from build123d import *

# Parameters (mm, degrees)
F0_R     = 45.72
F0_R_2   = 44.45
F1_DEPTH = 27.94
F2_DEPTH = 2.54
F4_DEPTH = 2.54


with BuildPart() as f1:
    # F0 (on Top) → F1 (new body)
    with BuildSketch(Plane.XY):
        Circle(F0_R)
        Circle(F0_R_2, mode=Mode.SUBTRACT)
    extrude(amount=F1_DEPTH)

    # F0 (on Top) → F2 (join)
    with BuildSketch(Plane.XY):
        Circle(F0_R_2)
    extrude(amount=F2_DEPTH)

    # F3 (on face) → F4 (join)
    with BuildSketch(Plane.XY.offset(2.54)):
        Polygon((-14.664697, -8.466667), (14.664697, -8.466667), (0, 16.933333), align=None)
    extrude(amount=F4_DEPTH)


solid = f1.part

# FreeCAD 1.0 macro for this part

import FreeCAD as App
import Part
import Sketcher
Q = App.Units.Quantity

doc = App.newDocument("Part")
body = doc.addObject("PartDesign::Body", "Body")

# Sketch on XY plane
sketch1 = body.newObject("Sketcher::SketchObject", "Sketch")
sketch1.AttachmentSupport = (doc.getObject("XY_Plane"), [""])
sketch1.MapMode = "FlatFace"
sketch1.addGeometry([
    Part.Circle(App.Vector(0, 0, 0), App.Vector(0, 0, 1), 46),
    Part.Circle(App.Vector(0, 0, 0), App.Vector(0, 0, 1), 44),
], False)
sketch1.addConstraint([
    Sketcher.Constraint("Coincident", 0, 3, -1, 1),
    Sketcher.Constraint("Coincident", 1, 3, -1, 1),
    Sketcher.Constraint("Diameter", 0, Q("3.6 in")),
    Sketcher.Constraint("Diameter", 1, Q("3.5 in")),
])
pad1 = body.newObject("PartDesign::Pad", "Pad")
pad1.Profile = sketch1
pad1.Length = Q("1.1 in")

# Sketch on XY plane
sketch2 = body.newObject("Sketcher::SketchObject", "Sketch001")
sketch2.AttachmentSupport = (doc.getObject("XY_Plane"), [""])
sketch2.MapMode = "FlatFace"
sketch2.addGeometry(Part.Circle(App.Vector(0, 0, 0), App.Vector(0, 0, 1), 44), False)
sketch2.addConstraint([
    Sketcher.Constraint("Coincident", 0, 3, -1, 1),
    Sketcher.Constraint("Diameter", 0, Q("3.5 in")),
])
pad2 = body.newObject("PartDesign::Pad", "Pad001")
pad2.Profile = sketch2
pad2.Length = Q("0.1 in")

# Sketch on XY plane
sketch3 = body.newObject("Sketcher::SketchObject", "Sketch002")
sketch3.AttachmentSupport = (doc.getObject("XY_Plane"), [""])
sketch3.MapMode = "FlatFace"
sketch3.AttachmentOffset = App.Placement(App.Vector(0, 0, 0.1 * 25.4), App.Rotation())
sketch3.addGeometry([
    Part.LineSegment(App.Vector(-15, -8, 0), App.Vector(15, -8, 0)),
    Part.LineSegment(App.Vector(15, -8, 0), App.Vector(0, 17, 0)),
    Part.LineSegment(App.Vector(0, 17, 0), App.Vector(-15, -8, 0)),
], False)
sketch3.addConstraint([
    Sketcher.Constraint("Coincident", 0, 2, 1, 1),
    Sketcher.Constraint("Coincident", 1, 2, 2, 1),
    Sketcher.Constraint("Coincident", 2, 2, 0, 1),
    Sketcher.Constraint("Horizontal", 0),
    Sketcher.Constraint("PointOnObject", 1, 2, -2),
    Sketcher.Constraint("Equal", 1, 2),
    Sketcher.Constraint("Angle", 1, Q("120 deg")),
    Sketcher.Constraint("DistanceY", 0, 2, 1, 2, Q("1 in")),
    Sketcher.Constraint("DistanceY", 0, 2, -1, 1, Q("8.466667 mm")),
])
pad3 = body.newObject("PartDesign::Pad", "Pad002")
pad3.Profile = sketch3
pad3.Length = Q("0.1 in")

doc.recompute()
